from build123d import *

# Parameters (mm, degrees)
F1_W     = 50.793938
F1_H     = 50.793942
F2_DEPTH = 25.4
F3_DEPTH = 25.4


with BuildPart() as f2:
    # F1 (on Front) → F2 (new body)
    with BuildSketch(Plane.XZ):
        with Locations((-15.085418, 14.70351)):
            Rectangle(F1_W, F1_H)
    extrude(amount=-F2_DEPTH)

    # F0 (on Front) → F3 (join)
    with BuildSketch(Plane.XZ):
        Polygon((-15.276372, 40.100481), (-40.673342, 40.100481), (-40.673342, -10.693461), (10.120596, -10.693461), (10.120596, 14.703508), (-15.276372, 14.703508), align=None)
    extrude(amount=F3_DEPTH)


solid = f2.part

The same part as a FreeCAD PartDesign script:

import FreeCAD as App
import Part
import Sketcher
Q = App.Units.Quantity

doc = App.newDocument("Part")
body = doc.addObject("PartDesign::Body", "Body")

# Sketch on XZ plane
sketch1 = doc.addObject("Sketcher::SketchObject", "Sketch")
body.addObject(sketch1)
sketch1.AttachmentSupport = (doc.XZ_Plane, [""])
sketch1.MapMode = "FlatFace"
sketch1.addGeometry([
    Part.LineSegment(App.Vector(-40, 40, 0), App.Vector(-40, -11, 0)),
    Part.LineSegment(App.Vector(-40, -11, 0), App.Vector(10, -11, 0)),
    Part.LineSegment(App.Vector(10, -11, 0), App.Vector(10, 40, 0)),
    Part.LineSegment(App.Vector(10, 40, 0), App.Vector(-40, 40, 0)),
], False)
sketch1.addConstraint([
    Sketcher.Constraint("Coincident", 0, 2, 1, 1),
    Sketcher.Constraint("Coincident", 1, 2, 2, 1),
    Sketcher.Constraint("Coincident", 2, 2, 3, 1),
    Sketcher.Constraint("Coincident", 3, 2, 0, 1),
    Sketcher.Constraint("Vertical", 0),
    Sketcher.Constraint("Horizontal", 1),
    Sketcher.Constraint("Vertical", 2),
    Sketcher.Constraint("Horizontal", 3),
    Sketcher.Constraint("DistanceX", 1, 1, 1, 2, Q("50.793938 mm")),
    Sketcher.Constraint("DistanceY", 0, 2, 0, 1, Q("50.793942 mm")),
    Sketcher.Constraint("DistanceY", 0, 2, -1, 1, Q("10.693461 mm")),
    Sketcher.Constraint("DistanceX", -1, 1, 1, 2, Q("10.311551 mm")),
])
pad1 = doc.addObject("PartDesign::Pad", "Pad")
body.addObject(pad1)
pad1.Profile = sketch1
pad1.Length = Q("1 in")
pad1.Reversed = True

# Sketch on XZ plane
sketch2 = doc.addObject("Sketcher::SketchObject", "Sketch001")
body.addObject(sketch2)
sketch2.AttachmentSupport = (doc.XZ_Plane, [""])
sketch2.MapMode = "FlatFace"
sketch2.addGeometry([
    Part.LineSegment(App.Vector(-15, 40, 0), App.Vector(-41, 40, 0)),  # 0
    Part.LineSegment(App.Vector(-41, 40, 0), App.Vector(-41, -11, 0)),  # 1
    Part.LineSegment(App.Vector(-41, -11, 0), App.Vector(10, -11, 0)),  # 2
    Part.LineSegment(App.Vector(10, -11, 0), App.Vector(10, 15, 0)),  # 3
    Part.LineSegment(App.Vector(10, 15, 0), App.Vector(-15, 15, 0)),  # 4
    Part.LineSegment(App.Vector(-15, 15, 0), App.Vector(-15, 40, 0)),  # 5
], False)
sketch2.addConstraint([
    Sketcher.Constraint("Coincident", 0, 2, 1, 1),
    Sketcher.Constraint("Coincident", 1, 2, 2, 1),
    Sketcher.Constraint("Coincident", 2, 2, 3, 1),
    Sketcher.Constraint("Coincident", 3, 2, 4, 1),
    Sketcher.Constraint("Coincident", 4, 2, 5, 1),
    Sketcher.Constraint("Coincident", 5, 2, 0, 1),
    Sketcher.Constraint("Horizontal", 0),
    Sketcher.Constraint("Vertical", 1),
    Sketcher.Constraint("Horizontal", 2),
    Sketcher.Constraint("Vertical", 3),
    Sketcher.Constraint("Horizontal", 4),
    Sketcher.Constraint("Vertical", 5),
    Sketcher.Constraint("Equal", 0, 4),
    Sketcher.Constraint("Equal", 4, 3),
    Sketcher.Constraint("DistanceX", 0, 2, 0, 1, Q("25.39697 mm")),
    Sketcher.Constraint("DistanceY", 1, 2, 1, 1, Q("50.793942 mm")),
    Sketcher.Constraint("DistanceX", 0, 2, -1, 1, Q("40.673342 mm")),
    Sketcher.Constraint("DistanceY", -1, 1, 0, 2, Q("40.100481 mm")),
])
pad2 = doc.addObject("PartDesign::Pad", "Pad001")
body.addObject(pad2)
pad2.Profile = sketch2
pad2.Length = Q("1 in")

doc.recompute()
